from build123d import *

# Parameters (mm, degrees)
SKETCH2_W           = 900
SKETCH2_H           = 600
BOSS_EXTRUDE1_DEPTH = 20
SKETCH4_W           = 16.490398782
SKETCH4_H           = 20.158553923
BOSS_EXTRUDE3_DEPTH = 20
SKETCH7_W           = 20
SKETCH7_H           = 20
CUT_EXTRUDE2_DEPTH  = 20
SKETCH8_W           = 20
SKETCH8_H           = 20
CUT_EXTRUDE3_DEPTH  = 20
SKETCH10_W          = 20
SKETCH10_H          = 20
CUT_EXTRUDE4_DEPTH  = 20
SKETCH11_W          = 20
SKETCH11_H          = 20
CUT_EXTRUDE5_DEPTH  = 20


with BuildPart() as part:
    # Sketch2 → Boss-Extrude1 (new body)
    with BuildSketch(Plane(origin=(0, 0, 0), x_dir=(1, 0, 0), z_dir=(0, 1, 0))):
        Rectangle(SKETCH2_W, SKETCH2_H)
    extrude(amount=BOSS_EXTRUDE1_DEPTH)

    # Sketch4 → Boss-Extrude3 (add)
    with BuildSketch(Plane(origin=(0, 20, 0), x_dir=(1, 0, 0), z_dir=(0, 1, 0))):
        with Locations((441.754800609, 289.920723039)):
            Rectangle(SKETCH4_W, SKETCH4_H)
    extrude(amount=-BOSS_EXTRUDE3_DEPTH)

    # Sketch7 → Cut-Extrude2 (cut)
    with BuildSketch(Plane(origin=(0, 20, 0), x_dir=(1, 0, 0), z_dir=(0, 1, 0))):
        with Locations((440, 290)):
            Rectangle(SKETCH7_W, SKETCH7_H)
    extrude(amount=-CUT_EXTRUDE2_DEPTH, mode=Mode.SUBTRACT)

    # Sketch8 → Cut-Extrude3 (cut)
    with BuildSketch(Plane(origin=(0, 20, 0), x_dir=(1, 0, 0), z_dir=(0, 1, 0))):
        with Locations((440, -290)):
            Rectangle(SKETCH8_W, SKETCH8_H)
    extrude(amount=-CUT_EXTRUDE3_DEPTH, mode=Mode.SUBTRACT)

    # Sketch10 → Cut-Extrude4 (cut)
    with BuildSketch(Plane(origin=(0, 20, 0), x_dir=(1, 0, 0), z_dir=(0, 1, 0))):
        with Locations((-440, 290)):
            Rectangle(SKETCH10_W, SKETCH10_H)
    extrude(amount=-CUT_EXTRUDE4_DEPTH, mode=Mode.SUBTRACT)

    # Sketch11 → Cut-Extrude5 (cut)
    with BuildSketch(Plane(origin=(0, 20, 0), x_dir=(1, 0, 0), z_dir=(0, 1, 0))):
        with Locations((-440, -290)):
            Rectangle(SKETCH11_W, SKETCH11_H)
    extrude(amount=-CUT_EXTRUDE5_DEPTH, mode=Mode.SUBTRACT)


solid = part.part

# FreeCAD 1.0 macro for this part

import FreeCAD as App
import Part
import Sketcher

V = App.Vector
Q = App.Units.Quantity


def add_polygon(sketch, points):
    """Adds a closed chain of lines whose ends are joined by coincident constraints."""
    first, n = sketch.GeometryCount, len(points)
    for a, b in zip(points, points[1:] + points[:1]):
        sketch.addGeometry(Part.LineSegment(App.Vector(*a, 0), App.Vector(*b, 0)), False)
    for i in range(n):
        sketch.addConstraint(Sketcher.Constraint("Coincident", first + i, 2, first + (i + 1) % n, 1))

doc = App.newDocument("Part")
body = doc.addObject("PartDesign::Body", "Body")

sketch1 = body.newObject("Sketcher::SketchObject", "Sketch")
sketch1.AttachmentSupport = (doc.getObject("XZ_Plane"), [""])
sketch1.MapMode = "FlatFace"
add_polygon(sketch1, [(-450, -300), (-450, 300), (450, 300), (450, -300)])
sketch1.addConstraint([
    Sketcher.Constraint("Vertical", 0),
    Sketcher.Constraint("Horizontal", 1),
    Sketcher.Constraint("Vertical", 2),
    Sketcher.Constraint("Horizontal", 3),
    Sketcher.Constraint("Symmetric", 0, 2, 2, 2, -1, 1),
    Sketcher.Constraint("DistanceX", 1, 1, 1, 2, Q("900 mm")),
    Sketcher.Constraint("DistanceY", 0, 1, 0, 2, Q("600 mm")),
])
pad1 = body.newObject("PartDesign::Pad", "Pad")
pad1.Profile = sketch1
pad1.Length = 20
pad1.Reversed = True

sketch2 = body.newObject("Sketcher::SketchObject", "Sketch001")
sketch2.AttachmentSupport = (doc.getObject("XZ_Plane"), [""])
sketch2.MapMode = "FlatFace"
sketch2.AttachmentOffset = App.Placement(V(0, 0, -20), App.Rotation())
add_polygon(sketch2, [(434, -300), (434, -280), (450, -280), (450, -300)])
sketch2.addConstraint([
    Sketcher.Constraint("Vertical", 0),
    Sketcher.Constraint("Horizontal", 1),
    Sketcher.Constraint("Vertical", 2),
    Sketcher.Constraint("Horizontal", 3),
    Sketcher.Constraint("DistanceX", -1, 1, 1, 2, Q("450 mm")),
    Sketcher.Constraint("DistanceY", 2, 2, -1, 1, Q("300 mm")),
    Sketcher.Constraint("DistanceX", 1, 1, 1, 2, Q("16.490399 mm")),
    Sketcher.Constraint("DistanceY", 0, 1, 0, 2, Q("20.158554 mm")),
])
pad2 = body.newObject("PartDesign::Pad", "Pad001")
pad2.Profile = sketch2
pad2.Length = 20

sketch3 = body.newObject("Sketcher::SketchObject", "Sketch002")
sketch3.AttachmentSupport = (doc.getObject("XZ_Plane"), [""])
sketch3.MapMode = "FlatFace"
sketch3.AttachmentOffset = App.Placement(V(0, 0, -20), App.Rotation())
add_polygon(sketch3, [(430, -300), (430, -280), (450, -280), (450, -300)])
sketch3.addConstraint([
    Sketcher.Constraint("Vertical", 0),
    Sketcher.Constraint("Horizontal", 1),
    Sketcher.Constraint("Vertical", 2),
    Sketcher.Constraint("Horizontal", 3),
    Sketcher.Constraint("Equal", 3, 0),
    Sketcher.Constraint("DistanceX", 1, 1, 1, 2, Q("20 mm")),
    Sketcher.Constraint("DistanceX", -1, 1, 0, 2, Q("430 mm")),
    Sketcher.Constraint("DistanceY", 0, 2, -1, 1, Q("280 mm")),
])
pocket1 = body.newObject("PartDesign::Pocket", "Pocket")
pocket1.Profile = sketch3
pocket1.Length = 20
pocket1.Reversed = True

sketch4 = body.newObject("Sketcher::SketchObject", "Sketch003")
sketch4.AttachmentSupport = (doc.getObject("XZ_Plane"), [""])
sketch4.MapMode = "FlatFace"
sketch4.AttachmentOffset = App.Placement(V(0, 0, -20), App.Rotation())
add_polygon(sketch4, [(430, 280), (430, 300), (450, 300), (450, 280)])
sketch4.addConstraint([
    Sketcher.Constraint("Vertical", 0),
    Sketcher.Constraint("Horizontal", 1),
    Sketcher.Constraint("Vertical", 2),
    Sketcher.Constraint("Horizontal", 3),
    Sketcher.Constraint("Equal", 3, 0),
    Sketcher.Constraint("DistanceX", 1, 1, 1, 2, Q("20 mm")),
    Sketcher.Constraint("DistanceX", -1, 1, 0, 2, Q("430 mm")),
    Sketcher.Constraint("DistanceY", -1, 1, 0, 2, Q("300 mm")),
])
pocket2 = body.newObject("PartDesign::Pocket", "Pocket001")
pocket2.Profile = sketch4
pocket2.Length = 20
pocket2.Reversed = True

sketch5 = body.newObject("Sketcher::SketchObject", "Sketch004")
sketch5.AttachmentSupport = (doc.getObject("XZ_Plane"), [""])
sketch5.MapMode = "FlatFace"
sketch5.AttachmentOffset = App.Placement(V(0, 0, -20), App.Rotation())
add_polygon(sketch5, [(-450, -300), (-450, -280), (-430, -280), (-430, -300)])
sketch5.addConstraint([
    Sketcher.Constraint("Vertical", 0),
    Sketcher.Constraint("Horizontal", 1),
    Sketcher.Constraint("Vertical", 2),
    Sketcher.Constraint("Horizontal", 3),
    Sketcher.Constraint("Equal", 3, 0),
    Sketcher.Constraint("DistanceX", 1, 1, 1, 2, Q("20 mm")),
    Sketcher.Constraint("DistanceX", 0, 2, -1, 1, Q("450 mm")),
    Sketcher.Constraint("DistanceY", 0, 2, -1, 1, Q("280 mm")),
])
pocket3 = body.newObject("PartDesign::Pocket", "Pocket002")
pocket3.Profile = sketch5
pocket3.Length = 20
pocket3.Reversed = True

sketch6 = body.newObject("Sketcher::SketchObject", "Sketch005")
sketch6.AttachmentSupport = (doc.getObject("XZ_Plane"), [""])
sketch6.MapMode = "FlatFace"
sketch6.AttachmentOffset = App.Placement(V(0, 0, -20), App.Rotation())
add_polygon(sketch6, [(-450, 280), (-450, 300), (-430, 300), (-430, 280)])
sketch6.addConstraint([
    Sketcher.Constraint("Vertical", 0),
    Sketcher.Constraint("Horizontal", 1),
    Sketcher.Constraint("Vertical", 2),
    Sketcher.Constraint("Horizontal", 3),
    Sketcher.Constraint("Equal", 3, 0),
    Sketcher.Constraint("DistanceX", 1, 1, 1, 2, Q("20 mm")),
    Sketcher.Constraint("DistanceX", 0, 2, -1, 1, Q("450 mm")),
    Sketcher.Constraint("DistanceY", -1, 1, 0, 2, Q("300 mm")),
])
pocket4 = body.newObject("PartDesign::Pocket", "Pocket003")
pocket4.Profile = sketch6
pocket4.Length = 20
pocket4.Reversed = True

doc.recompute()
